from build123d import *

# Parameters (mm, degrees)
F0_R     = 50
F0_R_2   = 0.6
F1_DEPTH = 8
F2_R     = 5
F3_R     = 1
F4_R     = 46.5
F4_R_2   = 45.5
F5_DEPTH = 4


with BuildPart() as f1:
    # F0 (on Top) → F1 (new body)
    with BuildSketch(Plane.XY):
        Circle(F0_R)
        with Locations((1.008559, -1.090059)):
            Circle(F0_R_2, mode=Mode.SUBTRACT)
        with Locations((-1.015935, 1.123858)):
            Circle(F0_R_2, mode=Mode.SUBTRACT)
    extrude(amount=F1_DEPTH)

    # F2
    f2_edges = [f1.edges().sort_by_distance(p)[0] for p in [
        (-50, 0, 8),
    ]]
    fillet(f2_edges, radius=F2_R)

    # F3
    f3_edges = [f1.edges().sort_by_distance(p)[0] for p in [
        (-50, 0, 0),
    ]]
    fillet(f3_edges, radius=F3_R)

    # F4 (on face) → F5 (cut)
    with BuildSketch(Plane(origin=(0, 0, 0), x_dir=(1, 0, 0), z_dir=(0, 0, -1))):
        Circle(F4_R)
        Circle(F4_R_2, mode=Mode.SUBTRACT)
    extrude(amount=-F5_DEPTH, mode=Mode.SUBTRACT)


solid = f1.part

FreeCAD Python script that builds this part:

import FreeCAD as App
import Part
import Sketcher

V = App.Vector
Q = App.Units.Quantity


def edges_at(feature, points):
    """Names of the edges that pass closest to the given points."""
    edges = feature.Shape.Edges
    near = lambda p: min(range(len(edges)), key=lambda i: edges[i].distToShape(Part.Vertex(*p))[0])
    return sorted({f"Edge{near(p) + 1}" for p in points})

doc = App.newDocument("Part")
body = doc.addObject("PartDesign::Body", "Body")

sketch1 = body.newObject("Sketcher::SketchObject", "Sketch")
sketch1.AttachmentSupport = (doc.getObject("XY_Plane"), [""])
sketch1.MapMode = "FlatFace"
sketch1.addGeometry([
    Part.Circle(V(0, 0, 0), V(0, 0, 1), 50),
    Part.Circle(V(1.008559, -1.090059, 0), V(0, 0, 1), 0.6),
    Part.Circle(V(-1.015935, 1.123858, 0), V(0, 0, 1), 0.6),
], False)
sketch1.addConstraint([
    Sketcher.Constraint("Coincident", 0, 3, -1, 1),
    Sketcher.Constraint("Equal", 1, 2),
    Sketcher.Constraint("Diameter", 0, Q("100 mm")),
    Sketcher.Constraint("Diameter", 1, Q("1.2 mm")),
    Sketcher.Constraint("DistanceX", -1, 1, 1, 3, Q("1.008559 mm")),
    Sketcher.Constraint("DistanceY", 1, 3, -1, 1, Q("1.090059 mm")),
    Sketcher.Constraint("DistanceX", 2, 3, -1, 1, Q("1.015935 mm")),
    Sketcher.Constraint("DistanceY", -1, 1, 2, 3, Q("1.123858 mm")),
])
pad1 = body.newObject("PartDesign::Pad", "Pad")
pad1.Profile = sketch1
pad1.Length = 8
doc.recompute()

fillet = body.newObject("PartDesign::Fillet", "Fillet")
fillet.Base = (pad1, edges_at(pad1, [(-50, 0, 8)]))
fillet.Radius = 5
doc.recompute()

fillet2 = body.newObject("PartDesign::Fillet", "Fillet001")
fillet2.Base = (fillet, edges_at(fillet, [(-50, 0, 0)]))
fillet2.Radius = 1

sketch2 = body.newObject("Sketcher::SketchObject", "Sketch001")
sketch2.AttachmentSupport = (doc.getObject("XY_Plane"), [""])
sketch2.MapMode = "FlatFace"
sketch2.addGeometry([
    Part.Circle(V(0, 0, 0), V(0, 0, 1), 46.5),
    Part.Circle(V(0, 0, 0), V(0, 0, 1), 45.5),
], False)
sketch2.addConstraint([
    Sketcher.Constraint("Coincident", 0, 3, -1, 1),
    Sketcher.Constraint("Coincident", 1, 3, -1, 1),
    Sketcher.Constraint("Diameter", 0, Q("93 mm")),
    Sketcher.Constraint("Diameter", 1, Q("91 mm")),
])
pocket1 = body.newObject("PartDesign::Pocket", "Pocket")
pocket1.Profile = sketch2
pocket1.Length = 4
pocket1.Reversed = True

doc.recompute()
